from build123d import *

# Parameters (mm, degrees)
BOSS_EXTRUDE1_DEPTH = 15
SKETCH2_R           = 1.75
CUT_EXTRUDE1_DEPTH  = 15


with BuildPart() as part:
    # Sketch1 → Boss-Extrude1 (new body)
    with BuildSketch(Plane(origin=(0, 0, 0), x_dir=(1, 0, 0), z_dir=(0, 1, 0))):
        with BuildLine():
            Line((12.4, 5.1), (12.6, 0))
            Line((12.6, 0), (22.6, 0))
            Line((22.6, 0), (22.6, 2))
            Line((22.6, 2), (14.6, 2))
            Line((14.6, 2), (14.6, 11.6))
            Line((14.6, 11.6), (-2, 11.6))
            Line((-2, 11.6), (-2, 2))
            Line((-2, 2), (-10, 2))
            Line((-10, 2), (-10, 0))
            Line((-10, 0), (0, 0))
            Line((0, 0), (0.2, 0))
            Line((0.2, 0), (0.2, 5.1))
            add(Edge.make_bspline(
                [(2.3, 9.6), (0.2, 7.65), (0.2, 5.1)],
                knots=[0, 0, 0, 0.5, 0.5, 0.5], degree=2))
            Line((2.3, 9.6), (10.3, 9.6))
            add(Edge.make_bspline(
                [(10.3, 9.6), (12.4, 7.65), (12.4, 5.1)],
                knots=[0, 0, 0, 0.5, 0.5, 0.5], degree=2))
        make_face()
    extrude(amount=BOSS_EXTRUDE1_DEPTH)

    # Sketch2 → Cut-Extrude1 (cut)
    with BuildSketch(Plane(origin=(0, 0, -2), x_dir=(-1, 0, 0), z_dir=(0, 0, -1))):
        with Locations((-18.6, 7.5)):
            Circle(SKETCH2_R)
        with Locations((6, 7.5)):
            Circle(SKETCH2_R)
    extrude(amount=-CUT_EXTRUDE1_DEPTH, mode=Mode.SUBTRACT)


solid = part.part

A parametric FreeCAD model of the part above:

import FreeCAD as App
import Part
import Sketcher

V = App.Vector

doc = App.newDocument("Part")
body = doc.addObject("PartDesign::Body", "Body")

sketch1 = body.newObject("Sketcher::SketchObject", "Sketch")
sketch1.AttachmentSupport = (doc.getObject("XZ_Plane"), [""])
sketch1.MapMode = "FlatFace"
sketch1.addGeometry([
    Part.LineSegment(V(12.4, -5.1, 0), V(12.6, 0, 0)),
    Part.LineSegment(V(12.6, 0, 0), V(22.6, 0, 0)),
    Part.LineSegment(V(22.6, 0, 0), V(22.6, -2, 0)),
    Part.LineSegment(V(22.6, -2, 0), V(14.6, -2, 0)),
    Part.LineSegment(V(14.6, -2, 0), V(14.6, -11.6, 0)),
    Part.LineSegment(V(14.6, -11.6, 0), V(-2, -11.6, 0)),
    Part.LineSegment(V(-2, -11.6, 0), V(-2, -2, 0)),
    Part.LineSegment(V(-2, -2, 0), V(-10, -2, 0)),
    Part.LineSegment(V(-10, -2, 0), V(-10, 0, 0)),
    Part.LineSegment(V(-10, 0, 0), V(0.2, 0, 0)),
    Part.LineSegment(V(0.2, 0, 0), V(0.2, -5.1, 0)),
    Part.BSplineCurve([V(2.3, -9.6, 0), V(0.2, -7.65, 0), V(0.2, -5.1, 0)], [3, 3], [0, 0.5], False, 2, [1, 1, 1], False),
    Part.LineSegment(V(2.3, -9.6, 0), V(10.3, -9.6, 0)),
    Part.BSplineCurve([V(10.3, -9.6, 0), V(12.4, -7.65, 0), V(12.4, -5.1, 0)], [3, 3], [0, 0.5], False, 2, [1, 1, 1], False),
], False)
sketch1.addConstraint([
    Sketcher.Constraint("Block", 11),
    Sketcher.Constraint("Block", 13),
    Sketcher.Constraint("Coincident", 0, 2, 1, 1),
    Sketcher.Constraint("Coincident", 1, 2, 2, 1),
    Sketcher.Constraint("Coincident", 2, 2, 3, 1),
    Sketcher.Constraint("Coincident", 3, 2, 4, 1),
    Sketcher.Constraint("Coincident", 4, 2, 5, 1),
    Sketcher.Constraint("Coincident", 5, 2, 6, 1),
    Sketcher.Constraint("Coincident", 6, 2, 7, 1),
    Sketcher.Constraint("Coincident", 7, 2, 8, 1),
    Sketcher.Constraint("Coincident", 8, 2, 9, 1),
    Sketcher.Constraint("Coincident", 9, 2, 10, 1),
    Sketcher.Constraint("Coincident", 10, 2, 11, 2),
    Sketcher.Constraint("Coincident", 11, 1, 12, 1),
    Sketcher.Constraint("Coincident", 12, 2, 13, 1),
    Sketcher.Constraint("Coincident", 13, 2, 0, 1),
    Sketcher.Constraint("Horizontal", 1),
    Sketcher.Constraint("Vertical", 2),
    Sketcher.Constraint("Horizontal", 3),
    Sketcher.Constraint("Vertical", 4),
    Sketcher.Constraint("Horizontal", 5),
    Sketcher.Constraint("Vertical", 6),
    Sketcher.Constraint("Horizontal", 7),
    Sketcher.Constraint("Vertical", 8),
    Sketcher.Constraint("Horizontal", 9),
    Sketcher.Constraint("Vertical", 10),
    Sketcher.Constraint("PointOnObject", 0, 2, -1),
    Sketcher.Constraint("PointOnObject", 8, 2, -1),
    Sketcher.Constraint("Horizontal", 3, 2, 6, 2),
    Sketcher.Constraint("Equal", 3, 7),
    Sketcher.Constraint("Equal", 7, 12),
    Sketcher.Constraint("DistanceX", 1, 1, 1, 2, 10.0),
    Sketcher.Constraint("DistanceY", 2, 2, 2, 1, 2.0),
    Sketcher.Constraint("DistanceX", 5, 2, 5, 1, 16.6),
    Sketcher.Constraint("DistanceX", 9, 1, 9, 2, 10.2),
    Sketcher.Constraint("DistanceY", 4, 2, 4, 1, 9.6),
])
pad1 = body.newObject("PartDesign::Pad", "Pad")
pad1.Profile = sketch1
pad1.Length = 15
pad1.Reversed = True

sketch2 = body.newObject("Sketcher::SketchObject", "Sketch001")
sketch2.AttachmentSupport = (doc.getObject("XY_Plane"), [""])
sketch2.MapMode = "FlatFace"
sketch2.AttachmentOffset = App.Placement(V(0, 0, -2), App.Rotation())
sketch2.addGeometry([
    Part.Circle(V(18.6, 7.5, 0), V(0, 0, 1), 1.8),
    Part.Circle(V(-6, 7.5, 0), V(0, 0, 1), 1.8),
], False)
sketch2.addConstraint([
    Sketcher.Constraint("Equal", 0, 1),
    Sketcher.Constraint("Horizontal", 0, 3, 1, 3),
    Sketcher.Constraint("Diameter", 0, 3.5),
    Sketcher.Constraint("DistanceX", 1, 3, -1, 1, 6.0),
    Sketcher.Constraint("DistanceX", -1, 1, 0, 3, 18.6),
    Sketcher.Constraint("DistanceY", -1, 1, 0, 3, 7.5),
])
pocket1 = body.newObject("PartDesign::Pocket", "Pocket")
pocket1.Profile = sketch2
pocket1.Length = 15
pocket1.Reversed = True

doc.recompute()
